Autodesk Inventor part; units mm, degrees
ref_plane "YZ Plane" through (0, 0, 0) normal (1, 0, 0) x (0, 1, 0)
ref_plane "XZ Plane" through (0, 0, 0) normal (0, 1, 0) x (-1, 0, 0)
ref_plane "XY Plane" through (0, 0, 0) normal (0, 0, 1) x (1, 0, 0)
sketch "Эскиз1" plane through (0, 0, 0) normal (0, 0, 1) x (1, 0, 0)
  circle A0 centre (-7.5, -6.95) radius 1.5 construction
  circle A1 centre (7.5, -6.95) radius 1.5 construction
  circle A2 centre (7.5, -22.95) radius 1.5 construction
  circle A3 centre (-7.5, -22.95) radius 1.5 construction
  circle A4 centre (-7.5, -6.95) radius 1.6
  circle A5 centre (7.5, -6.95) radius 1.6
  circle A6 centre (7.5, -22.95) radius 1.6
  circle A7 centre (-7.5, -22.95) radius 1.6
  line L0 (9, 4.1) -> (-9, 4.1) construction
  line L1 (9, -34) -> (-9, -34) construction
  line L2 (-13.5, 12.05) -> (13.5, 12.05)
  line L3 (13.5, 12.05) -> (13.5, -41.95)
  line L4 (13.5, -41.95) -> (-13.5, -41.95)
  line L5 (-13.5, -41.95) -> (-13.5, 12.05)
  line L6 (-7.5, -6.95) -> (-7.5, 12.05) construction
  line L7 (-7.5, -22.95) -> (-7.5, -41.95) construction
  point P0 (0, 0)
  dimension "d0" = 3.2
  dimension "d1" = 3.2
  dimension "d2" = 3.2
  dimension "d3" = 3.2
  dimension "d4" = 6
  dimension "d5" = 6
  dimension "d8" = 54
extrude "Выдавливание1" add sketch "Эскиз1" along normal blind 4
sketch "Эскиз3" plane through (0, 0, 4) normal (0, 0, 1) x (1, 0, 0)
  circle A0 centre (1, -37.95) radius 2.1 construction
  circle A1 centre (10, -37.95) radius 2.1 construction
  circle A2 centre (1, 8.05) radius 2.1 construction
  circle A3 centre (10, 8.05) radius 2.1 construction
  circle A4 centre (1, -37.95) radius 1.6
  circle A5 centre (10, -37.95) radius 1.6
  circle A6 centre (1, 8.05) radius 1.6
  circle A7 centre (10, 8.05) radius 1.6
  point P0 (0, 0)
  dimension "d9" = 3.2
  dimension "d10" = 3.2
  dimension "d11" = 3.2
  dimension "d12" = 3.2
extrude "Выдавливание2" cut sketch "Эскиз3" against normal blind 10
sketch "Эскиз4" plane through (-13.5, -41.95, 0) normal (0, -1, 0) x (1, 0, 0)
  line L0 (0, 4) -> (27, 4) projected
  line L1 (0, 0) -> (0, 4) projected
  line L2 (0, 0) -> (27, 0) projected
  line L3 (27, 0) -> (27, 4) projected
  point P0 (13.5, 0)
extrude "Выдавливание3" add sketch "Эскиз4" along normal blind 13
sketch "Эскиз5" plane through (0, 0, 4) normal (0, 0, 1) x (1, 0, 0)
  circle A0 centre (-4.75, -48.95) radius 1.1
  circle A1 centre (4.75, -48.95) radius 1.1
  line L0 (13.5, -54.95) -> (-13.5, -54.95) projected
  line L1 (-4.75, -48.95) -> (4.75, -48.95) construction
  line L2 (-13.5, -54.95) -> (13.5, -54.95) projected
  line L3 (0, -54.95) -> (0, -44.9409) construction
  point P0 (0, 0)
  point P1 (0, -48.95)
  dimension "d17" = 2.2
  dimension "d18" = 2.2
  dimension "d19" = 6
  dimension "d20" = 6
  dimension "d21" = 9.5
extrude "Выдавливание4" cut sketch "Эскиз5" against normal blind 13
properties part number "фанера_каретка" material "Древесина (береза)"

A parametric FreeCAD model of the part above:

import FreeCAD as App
import Part
import Sketcher

V = App.Vector
Q = App.Units.Quantity


def add_polygon(sketch, points):
    """Adds a closed chain of lines whose ends are joined by coincident constraints."""
    first, n = sketch.GeometryCount, len(points)
    for a, b in zip(points, points[1:] + points[:1]):
        sketch.addGeometry(Part.LineSegment(App.Vector(*a, 0), App.Vector(*b, 0)), False)
    for i in range(n):
        sketch.addConstraint(Sketcher.Constraint("Coincident", first + i, 2, first + (i + 1) % n, 1))

doc = App.newDocument("Part")
params = doc.addObject("Spreadsheet::Sheet", "Params")
for row, (alias, value) in enumerate([
    ("sketch1_diameter", "3.2 mm"),
    ("sketch1_height", "54 mm"),
    ("sketch1_width", "27 mm"),
    ("pad1_length", "4 mm"),
    ("sketch2_diameter", "3.2 mm"),
    ("pocket1_length", "10 mm"),
    ("sketch3_width", "27 mm"),
    ("sketch3_height", "4 mm"),
    ("pad2_length", "13 mm"),
    ("sketch4_diameter", "2.2 mm"),
    ("pocket2_length", "13 mm"),
], start=1):
    params.set(f"A{row}", alias)
    params.set(f"B{row}", "=" + value)
    params.setAlias(f"B{row}", alias)

body = doc.addObject("PartDesign::Body", "Body")

# Sketch on XY plane
sketch1 = body.newObject("Sketcher::SketchObject", "Sketch")
sketch1.AttachmentSupport = (doc.getObject("XY_Plane"), [""])
sketch1.MapMode = "FlatFace"
add_polygon(sketch1, [(13.5, 12.1), (-13.5, 12.1), (-13.5, -42), (13.5, -42)])  # lines 0-3
sketch1.addGeometry(Part.Circle(V(-7.5, -22.9, 0), V(0, 0, 1), 1.6), False)  # 4
sketch1.addGeometry(Part.Circle(V(7.5, -22.9, 0), V(0, 0, 1), 1.6), False)  # 5
sketch1.addGeometry(Part.Circle(V(-7.5, -7, 0), V(0, 0, 1), 1.6), False)  # 6
sketch1.addGeometry(Part.Circle(V(7.5, -7, 0), V(0, 0, 1), 1.6), False)  # 7
sketch1.addConstraint(Sketcher.Constraint("Horizontal", 0))
sketch1.addConstraint(Sketcher.Constraint("Vertical", 1))
sketch1.addConstraint(Sketcher.Constraint("Horizontal", 2))
sketch1.addConstraint(Sketcher.Constraint("Vertical", 3))
sketch1.addConstraint(Sketcher.Constraint("Equal", 4, 5))
sketch1.addConstraint(Sketcher.Constraint("Equal", 5, 6))
sketch1.addConstraint(Sketcher.Constraint("Equal", 6, 7))
sketch1.addConstraint(Sketcher.Constraint("Symmetric", 4, 3, 5, 3, -2))
sketch1.addConstraint(Sketcher.Constraint("Symmetric", 6, 3, 7, 3, -2))
sketch1.addConstraint(Sketcher.Constraint("Vertical", 4, 3, 6, 3))
sketch1.addConstraint(Sketcher.Constraint("Diameter", 4, Q("3.2 mm")))
sketch1.addConstraint(Sketcher.Constraint("DistanceY", 1, 2, 1, 1, Q("54 mm")))
sketch1.addConstraint(Sketcher.Constraint("DistanceX", 0, 2, 6, 3, Q("6 mm")))
sketch1.addConstraint(Sketcher.Constraint("DistanceX", 5, 3, 2, 2, Q("6 mm")))
sketch1.addConstraint(Sketcher.Constraint("DistanceX", 0, 2, 0, 1, Q("27 mm")))
sketch1.addConstraint(Sketcher.Constraint("DistanceY", 4, 3, 6, 3, Q("16 mm")))
sketch1.addConstraint(Sketcher.Constraint("DistanceY", 6, 3, 0, 2, Q("19 mm")))
sketch1.addConstraint(Sketcher.Constraint("DistanceY", 4, 3, -1, 1, Q("22.95 mm")))
sketch1.setExpression("Constraints[14]", "Params.sketch1_diameter")
sketch1.setExpression("Constraints[15]", "Params.sketch1_height")
sketch1.setExpression("Constraints[18]", "Params.sketch1_width")
pad1 = body.newObject("PartDesign::Pad", "Pad")
pad1.Profile = sketch1
pad1.setExpression("Length", "Params.pad1_length")

# Sketch on XY plane
sketch2 = body.newObject("Sketcher::SketchObject", "Sketch001")
sketch2.AttachmentSupport = (doc.getObject("XY_Plane"), [""])
sketch2.MapMode = "FlatFace"
sketch2.AttachmentOffset = App.Placement(V(0, 0, 4), App.Rotation())
sketch2.addGeometry(Part.Circle(V(1, -38, 0), V(0, 0, 1), 1.6), False)
sketch2.addGeometry(Part.Circle(V(10, -38, 0), V(0, 0, 1), 1.6), False)
sketch2.addGeometry(Part.Circle(V(1, 8.1, 0), V(0, 0, 1), 1.6), False)
sketch2.addGeometry(Part.Circle(V(10, 8.1, 0), V(0, 0, 1), 1.6), False)
sketch2.addConstraint(Sketcher.Constraint("Equal", 0, 1))
sketch2.addConstraint(Sketcher.Constraint("Equal", 1, 2))
sketch2.addConstraint(Sketcher.Constraint("Equal", 2, 3))
sketch2.addConstraint(Sketcher.Constraint("Horizontal", 0, 3, 1, 3))
sketch2.addConstraint(Sketcher.Constraint("Horizontal", 2, 3, 3, 3))
sketch2.addConstraint(Sketcher.Constraint("Vertical", 0, 3, 2, 3))
sketch2.addConstraint(Sketcher.Constraint("Vertical", 1, 3, 3, 3))
sketch2.addConstraint(Sketcher.Constraint("Diameter", 0, Q("3.2 mm")))
sketch2.addConstraint(Sketcher.Constraint("DistanceX", -1, 1, 0, 3, Q("1 mm")))
sketch2.addConstraint(Sketcher.Constraint("DistanceX", -1, 1, 1, 3, Q("10 mm")))
sketch2.addConstraint(Sketcher.Constraint("DistanceY", 0, 3, 2, 3, Q("46 mm")))
sketch2.addConstraint(Sketcher.Constraint("DistanceY", 0, 3, -1, 1, Q("37.95 mm")))
sketch2.setExpression("Constraints[7]", "Params.sketch2_diameter")
pocket1 = body.newObject("PartDesign::Pocket", "Pocket")
pocket1.Profile = sketch2
pocket1.setExpression("Length", "Params.pocket1_length")

# Sketch on XZ plane
sketch3 = body.newObject("Sketcher::SketchObject", "Sketch002")
sketch3.AttachmentSupport = (doc.getObject("XZ_Plane"), [""])
sketch3.MapMode = "FlatFace"
sketch3.AttachmentOffset = App.Placement(V(0, 0, 41.95), App.Rotation())
add_polygon(sketch3, [(13.5, 4), (-13.5, 4), (-13.5, 0), (13.5, 0)])  # lines 0-3
sketch3.addConstraint(Sketcher.Constraint("Horizontal", 0))
sketch3.addConstraint(Sketcher.Constraint("Vertical", 1))
sketch3.addConstraint(Sketcher.Constraint("Horizontal", 2))
sketch3.addConstraint(Sketcher.Constraint("Vertical", 3))
sketch3.addConstraint(Sketcher.Constraint("Symmetric", 1, 2, 2, 2, -1, 1))
sketch3.addConstraint(Sketcher.Constraint("DistanceX", 0, 2, 0, 1, Q("27 mm")))
sketch3.addConstraint(Sketcher.Constraint("DistanceY", 1, 2, 1, 1, Q("4 mm")))
sketch3.setExpression("Constraints[9]", "Params.sketch3_width")
sketch3.setExpression("Constraints[10]", "Params.sketch3_height")
pad2 = body.newObject("PartDesign::Pad", "Pad001")
pad2.Profile = sketch3
pad2.setExpression("Length", "Params.pad2_length")

# Sketch on XY plane
sketch4 = body.newObject("Sketcher::SketchObject", "Sketch003")
sketch4.AttachmentSupport = (doc.getObject("XY_Plane"), [""])
sketch4.MapMode = "FlatFace"
sketch4.AttachmentOffset = App.Placement(V(0, 0, 4), App.Rotation())
sketch4.addGeometry(Part.Circle(V(-4.8, -49, 0), V(0, 0, 1), 1.1), False)
sketch4.addGeometry(Part.Circle(V(4.8, -49, 0), V(0, 0, 1), 1.1), False)
sketch4.addConstraint(Sketcher.Constraint("Equal", 0, 1))
sketch4.addConstraint(Sketcher.Constraint("Symmetric", 0, 3, 1, 3, -2))
sketch4.addConstraint(Sketcher.Constraint("Diameter", 0, Q("2.2 mm")))
sketch4.addConstraint(Sketcher.Constraint("DistanceX", 0, 3, 1, 3, Q("9.5 mm")))
sketch4.addConstraint(Sketcher.Constraint("DistanceY", 0, 3, -1, 1, Q("48.95 mm")))
sketch4.setExpression("Constraints[2]", "Params.sketch4_diameter")
pocket2 = body.newObject("PartDesign::Pocket", "Pocket001")
pocket2.Profile = sketch4
pocket2.setExpression("Length", "Params.pocket2_length")

doc.recompute()
